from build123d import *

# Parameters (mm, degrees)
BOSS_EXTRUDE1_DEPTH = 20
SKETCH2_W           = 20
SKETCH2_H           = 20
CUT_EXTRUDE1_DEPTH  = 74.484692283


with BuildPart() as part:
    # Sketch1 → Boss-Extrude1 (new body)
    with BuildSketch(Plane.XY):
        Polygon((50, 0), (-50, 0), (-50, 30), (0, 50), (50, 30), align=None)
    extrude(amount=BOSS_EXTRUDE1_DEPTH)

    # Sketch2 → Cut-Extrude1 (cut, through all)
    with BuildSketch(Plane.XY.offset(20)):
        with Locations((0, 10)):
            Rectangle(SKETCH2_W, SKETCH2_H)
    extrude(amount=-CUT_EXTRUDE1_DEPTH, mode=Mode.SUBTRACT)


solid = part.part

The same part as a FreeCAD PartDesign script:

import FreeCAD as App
import Part
import Sketcher
from FreeCAD import Vector
Q = App.Units.Quantity

doc = App.newDocument("Part")
body = doc.addObject("PartDesign::Body", "Body")

sketch1 = body.newObject("Sketcher::SketchObject", "Sketch")
sketch1.AttachmentSupport = (doc.getObject("XY_Plane"), [""])
sketch1.MapMode = "FlatFace"
sketch1.addGeometry(Part.LineSegment(Vector(-50, 0, 0), Vector(50, 0, 0)), False)
sketch1.addGeometry(Part.LineSegment(Vector(50, 0, 0), Vector(50, 30, 0)), False)
sketch1.addGeometry(Part.LineSegment(Vector(50, 30, 0), Vector(0, 50, 0)), False)
sketch1.addGeometry(Part.LineSegment(Vector(0, 50, 0), Vector(-50, 30, 0)), False)
sketch1.addGeometry(Part.LineSegment(Vector(-50, 30, 0), Vector(-50, 0, 0)), False)
sketch1.addConstraint(Sketcher.Constraint("Coincident", 0, 2, 1, 1))
sketch1.addConstraint(Sketcher.Constraint("Coincident", 1, 2, 2, 1))
sketch1.addConstraint(Sketcher.Constraint("Coincident", 2, 2, 3, 1))
sketch1.addConstraint(Sketcher.Constraint("Coincident", 3, 2, 4, 1))
sketch1.addConstraint(Sketcher.Constraint("Coincident", 4, 2, 0, 1))
sketch1.addConstraint(Sketcher.Constraint("Horizontal", 0))
sketch1.addConstraint(Sketcher.Constraint("Vertical", 1))
sketch1.addConstraint(Sketcher.Constraint("Vertical", 4))
sketch1.addConstraint(Sketcher.Constraint("Symmetric", 0, 2, 4, 2, -1, 1))
sketch1.addConstraint(Sketcher.Constraint("PointOnObject", 2, 2, -2))
sketch1.addConstraint(Sketcher.Constraint("Horizontal", 1, 2, 3, 2))
sketch1.addConstraint(Sketcher.Constraint("DistanceX", 0, 1, 0, 2, Q("100 mm")))
sketch1.addConstraint(Sketcher.Constraint("DistanceY", 1, 1, 1, 2, Q("30 mm")))
sketch1.addConstraint(Sketcher.Constraint("DistanceY", -1, 1, 2, 2, Q("50 mm")))
pad1 = body.newObject("PartDesign::Pad", "Pad")
pad1.Profile = sketch1
pad1.Length = 20

sketch2 = body.newObject("Sketcher::SketchObject", "Sketch001")
sketch2.AttachmentSupport = (doc.getObject("XY_Plane"), [""])
sketch2.MapMode = "FlatFace"
sketch2.AttachmentOffset = App.Placement(Vector(0, 0, 20), App.Rotation())
sketch2.addGeometry(Part.LineSegment(Vector(-10, 20, 0), Vector(-10, 0, 0)), False)
sketch2.addGeometry(Part.LineSegment(Vector(-10, 0, 0), Vector(10, 0, 0)), False)
sketch2.addGeometry(Part.LineSegment(Vector(10, 0, 0), Vector(10, 20, 0)), False)
sketch2.addGeometry(Part.LineSegment(Vector(10, 20, 0), Vector(-10, 20, 0)), False)
sketch2.addConstraint(Sketcher.Constraint("Coincident", 0, 2, 1, 1))
sketch2.addConstraint(Sketcher.Constraint("Coincident", 1, 2, 2, 1))
sketch2.addConstraint(Sketcher.Constraint("Coincident", 2, 2, 3, 1))
sketch2.addConstraint(Sketcher.Constraint("Coincident", 3, 2, 0, 1))
sketch2.addConstraint(Sketcher.Constraint("Vertical", 0))
sketch2.addConstraint(Sketcher.Constraint("Horizontal", 1))
sketch2.addConstraint(Sketcher.Constraint("Vertical", 2))
sketch2.addConstraint(Sketcher.Constraint("Horizontal", 3))
sketch2.addConstraint(Sketcher.Constraint("Symmetric", 0, 2, 1, 2, -1, 1))
sketch2.addConstraint(Sketcher.Constraint("Equal", 3, 0))
sketch2.addConstraint(Sketcher.Constraint("DistanceX", 1, 1, 1, 2, Q("20 mm")))
pocket1 = body.newObject("PartDesign::Pocket", "Pocket")
pocket1.Profile = sketch2
pocket1.Type = "ThroughAll"

doc.recompute()
